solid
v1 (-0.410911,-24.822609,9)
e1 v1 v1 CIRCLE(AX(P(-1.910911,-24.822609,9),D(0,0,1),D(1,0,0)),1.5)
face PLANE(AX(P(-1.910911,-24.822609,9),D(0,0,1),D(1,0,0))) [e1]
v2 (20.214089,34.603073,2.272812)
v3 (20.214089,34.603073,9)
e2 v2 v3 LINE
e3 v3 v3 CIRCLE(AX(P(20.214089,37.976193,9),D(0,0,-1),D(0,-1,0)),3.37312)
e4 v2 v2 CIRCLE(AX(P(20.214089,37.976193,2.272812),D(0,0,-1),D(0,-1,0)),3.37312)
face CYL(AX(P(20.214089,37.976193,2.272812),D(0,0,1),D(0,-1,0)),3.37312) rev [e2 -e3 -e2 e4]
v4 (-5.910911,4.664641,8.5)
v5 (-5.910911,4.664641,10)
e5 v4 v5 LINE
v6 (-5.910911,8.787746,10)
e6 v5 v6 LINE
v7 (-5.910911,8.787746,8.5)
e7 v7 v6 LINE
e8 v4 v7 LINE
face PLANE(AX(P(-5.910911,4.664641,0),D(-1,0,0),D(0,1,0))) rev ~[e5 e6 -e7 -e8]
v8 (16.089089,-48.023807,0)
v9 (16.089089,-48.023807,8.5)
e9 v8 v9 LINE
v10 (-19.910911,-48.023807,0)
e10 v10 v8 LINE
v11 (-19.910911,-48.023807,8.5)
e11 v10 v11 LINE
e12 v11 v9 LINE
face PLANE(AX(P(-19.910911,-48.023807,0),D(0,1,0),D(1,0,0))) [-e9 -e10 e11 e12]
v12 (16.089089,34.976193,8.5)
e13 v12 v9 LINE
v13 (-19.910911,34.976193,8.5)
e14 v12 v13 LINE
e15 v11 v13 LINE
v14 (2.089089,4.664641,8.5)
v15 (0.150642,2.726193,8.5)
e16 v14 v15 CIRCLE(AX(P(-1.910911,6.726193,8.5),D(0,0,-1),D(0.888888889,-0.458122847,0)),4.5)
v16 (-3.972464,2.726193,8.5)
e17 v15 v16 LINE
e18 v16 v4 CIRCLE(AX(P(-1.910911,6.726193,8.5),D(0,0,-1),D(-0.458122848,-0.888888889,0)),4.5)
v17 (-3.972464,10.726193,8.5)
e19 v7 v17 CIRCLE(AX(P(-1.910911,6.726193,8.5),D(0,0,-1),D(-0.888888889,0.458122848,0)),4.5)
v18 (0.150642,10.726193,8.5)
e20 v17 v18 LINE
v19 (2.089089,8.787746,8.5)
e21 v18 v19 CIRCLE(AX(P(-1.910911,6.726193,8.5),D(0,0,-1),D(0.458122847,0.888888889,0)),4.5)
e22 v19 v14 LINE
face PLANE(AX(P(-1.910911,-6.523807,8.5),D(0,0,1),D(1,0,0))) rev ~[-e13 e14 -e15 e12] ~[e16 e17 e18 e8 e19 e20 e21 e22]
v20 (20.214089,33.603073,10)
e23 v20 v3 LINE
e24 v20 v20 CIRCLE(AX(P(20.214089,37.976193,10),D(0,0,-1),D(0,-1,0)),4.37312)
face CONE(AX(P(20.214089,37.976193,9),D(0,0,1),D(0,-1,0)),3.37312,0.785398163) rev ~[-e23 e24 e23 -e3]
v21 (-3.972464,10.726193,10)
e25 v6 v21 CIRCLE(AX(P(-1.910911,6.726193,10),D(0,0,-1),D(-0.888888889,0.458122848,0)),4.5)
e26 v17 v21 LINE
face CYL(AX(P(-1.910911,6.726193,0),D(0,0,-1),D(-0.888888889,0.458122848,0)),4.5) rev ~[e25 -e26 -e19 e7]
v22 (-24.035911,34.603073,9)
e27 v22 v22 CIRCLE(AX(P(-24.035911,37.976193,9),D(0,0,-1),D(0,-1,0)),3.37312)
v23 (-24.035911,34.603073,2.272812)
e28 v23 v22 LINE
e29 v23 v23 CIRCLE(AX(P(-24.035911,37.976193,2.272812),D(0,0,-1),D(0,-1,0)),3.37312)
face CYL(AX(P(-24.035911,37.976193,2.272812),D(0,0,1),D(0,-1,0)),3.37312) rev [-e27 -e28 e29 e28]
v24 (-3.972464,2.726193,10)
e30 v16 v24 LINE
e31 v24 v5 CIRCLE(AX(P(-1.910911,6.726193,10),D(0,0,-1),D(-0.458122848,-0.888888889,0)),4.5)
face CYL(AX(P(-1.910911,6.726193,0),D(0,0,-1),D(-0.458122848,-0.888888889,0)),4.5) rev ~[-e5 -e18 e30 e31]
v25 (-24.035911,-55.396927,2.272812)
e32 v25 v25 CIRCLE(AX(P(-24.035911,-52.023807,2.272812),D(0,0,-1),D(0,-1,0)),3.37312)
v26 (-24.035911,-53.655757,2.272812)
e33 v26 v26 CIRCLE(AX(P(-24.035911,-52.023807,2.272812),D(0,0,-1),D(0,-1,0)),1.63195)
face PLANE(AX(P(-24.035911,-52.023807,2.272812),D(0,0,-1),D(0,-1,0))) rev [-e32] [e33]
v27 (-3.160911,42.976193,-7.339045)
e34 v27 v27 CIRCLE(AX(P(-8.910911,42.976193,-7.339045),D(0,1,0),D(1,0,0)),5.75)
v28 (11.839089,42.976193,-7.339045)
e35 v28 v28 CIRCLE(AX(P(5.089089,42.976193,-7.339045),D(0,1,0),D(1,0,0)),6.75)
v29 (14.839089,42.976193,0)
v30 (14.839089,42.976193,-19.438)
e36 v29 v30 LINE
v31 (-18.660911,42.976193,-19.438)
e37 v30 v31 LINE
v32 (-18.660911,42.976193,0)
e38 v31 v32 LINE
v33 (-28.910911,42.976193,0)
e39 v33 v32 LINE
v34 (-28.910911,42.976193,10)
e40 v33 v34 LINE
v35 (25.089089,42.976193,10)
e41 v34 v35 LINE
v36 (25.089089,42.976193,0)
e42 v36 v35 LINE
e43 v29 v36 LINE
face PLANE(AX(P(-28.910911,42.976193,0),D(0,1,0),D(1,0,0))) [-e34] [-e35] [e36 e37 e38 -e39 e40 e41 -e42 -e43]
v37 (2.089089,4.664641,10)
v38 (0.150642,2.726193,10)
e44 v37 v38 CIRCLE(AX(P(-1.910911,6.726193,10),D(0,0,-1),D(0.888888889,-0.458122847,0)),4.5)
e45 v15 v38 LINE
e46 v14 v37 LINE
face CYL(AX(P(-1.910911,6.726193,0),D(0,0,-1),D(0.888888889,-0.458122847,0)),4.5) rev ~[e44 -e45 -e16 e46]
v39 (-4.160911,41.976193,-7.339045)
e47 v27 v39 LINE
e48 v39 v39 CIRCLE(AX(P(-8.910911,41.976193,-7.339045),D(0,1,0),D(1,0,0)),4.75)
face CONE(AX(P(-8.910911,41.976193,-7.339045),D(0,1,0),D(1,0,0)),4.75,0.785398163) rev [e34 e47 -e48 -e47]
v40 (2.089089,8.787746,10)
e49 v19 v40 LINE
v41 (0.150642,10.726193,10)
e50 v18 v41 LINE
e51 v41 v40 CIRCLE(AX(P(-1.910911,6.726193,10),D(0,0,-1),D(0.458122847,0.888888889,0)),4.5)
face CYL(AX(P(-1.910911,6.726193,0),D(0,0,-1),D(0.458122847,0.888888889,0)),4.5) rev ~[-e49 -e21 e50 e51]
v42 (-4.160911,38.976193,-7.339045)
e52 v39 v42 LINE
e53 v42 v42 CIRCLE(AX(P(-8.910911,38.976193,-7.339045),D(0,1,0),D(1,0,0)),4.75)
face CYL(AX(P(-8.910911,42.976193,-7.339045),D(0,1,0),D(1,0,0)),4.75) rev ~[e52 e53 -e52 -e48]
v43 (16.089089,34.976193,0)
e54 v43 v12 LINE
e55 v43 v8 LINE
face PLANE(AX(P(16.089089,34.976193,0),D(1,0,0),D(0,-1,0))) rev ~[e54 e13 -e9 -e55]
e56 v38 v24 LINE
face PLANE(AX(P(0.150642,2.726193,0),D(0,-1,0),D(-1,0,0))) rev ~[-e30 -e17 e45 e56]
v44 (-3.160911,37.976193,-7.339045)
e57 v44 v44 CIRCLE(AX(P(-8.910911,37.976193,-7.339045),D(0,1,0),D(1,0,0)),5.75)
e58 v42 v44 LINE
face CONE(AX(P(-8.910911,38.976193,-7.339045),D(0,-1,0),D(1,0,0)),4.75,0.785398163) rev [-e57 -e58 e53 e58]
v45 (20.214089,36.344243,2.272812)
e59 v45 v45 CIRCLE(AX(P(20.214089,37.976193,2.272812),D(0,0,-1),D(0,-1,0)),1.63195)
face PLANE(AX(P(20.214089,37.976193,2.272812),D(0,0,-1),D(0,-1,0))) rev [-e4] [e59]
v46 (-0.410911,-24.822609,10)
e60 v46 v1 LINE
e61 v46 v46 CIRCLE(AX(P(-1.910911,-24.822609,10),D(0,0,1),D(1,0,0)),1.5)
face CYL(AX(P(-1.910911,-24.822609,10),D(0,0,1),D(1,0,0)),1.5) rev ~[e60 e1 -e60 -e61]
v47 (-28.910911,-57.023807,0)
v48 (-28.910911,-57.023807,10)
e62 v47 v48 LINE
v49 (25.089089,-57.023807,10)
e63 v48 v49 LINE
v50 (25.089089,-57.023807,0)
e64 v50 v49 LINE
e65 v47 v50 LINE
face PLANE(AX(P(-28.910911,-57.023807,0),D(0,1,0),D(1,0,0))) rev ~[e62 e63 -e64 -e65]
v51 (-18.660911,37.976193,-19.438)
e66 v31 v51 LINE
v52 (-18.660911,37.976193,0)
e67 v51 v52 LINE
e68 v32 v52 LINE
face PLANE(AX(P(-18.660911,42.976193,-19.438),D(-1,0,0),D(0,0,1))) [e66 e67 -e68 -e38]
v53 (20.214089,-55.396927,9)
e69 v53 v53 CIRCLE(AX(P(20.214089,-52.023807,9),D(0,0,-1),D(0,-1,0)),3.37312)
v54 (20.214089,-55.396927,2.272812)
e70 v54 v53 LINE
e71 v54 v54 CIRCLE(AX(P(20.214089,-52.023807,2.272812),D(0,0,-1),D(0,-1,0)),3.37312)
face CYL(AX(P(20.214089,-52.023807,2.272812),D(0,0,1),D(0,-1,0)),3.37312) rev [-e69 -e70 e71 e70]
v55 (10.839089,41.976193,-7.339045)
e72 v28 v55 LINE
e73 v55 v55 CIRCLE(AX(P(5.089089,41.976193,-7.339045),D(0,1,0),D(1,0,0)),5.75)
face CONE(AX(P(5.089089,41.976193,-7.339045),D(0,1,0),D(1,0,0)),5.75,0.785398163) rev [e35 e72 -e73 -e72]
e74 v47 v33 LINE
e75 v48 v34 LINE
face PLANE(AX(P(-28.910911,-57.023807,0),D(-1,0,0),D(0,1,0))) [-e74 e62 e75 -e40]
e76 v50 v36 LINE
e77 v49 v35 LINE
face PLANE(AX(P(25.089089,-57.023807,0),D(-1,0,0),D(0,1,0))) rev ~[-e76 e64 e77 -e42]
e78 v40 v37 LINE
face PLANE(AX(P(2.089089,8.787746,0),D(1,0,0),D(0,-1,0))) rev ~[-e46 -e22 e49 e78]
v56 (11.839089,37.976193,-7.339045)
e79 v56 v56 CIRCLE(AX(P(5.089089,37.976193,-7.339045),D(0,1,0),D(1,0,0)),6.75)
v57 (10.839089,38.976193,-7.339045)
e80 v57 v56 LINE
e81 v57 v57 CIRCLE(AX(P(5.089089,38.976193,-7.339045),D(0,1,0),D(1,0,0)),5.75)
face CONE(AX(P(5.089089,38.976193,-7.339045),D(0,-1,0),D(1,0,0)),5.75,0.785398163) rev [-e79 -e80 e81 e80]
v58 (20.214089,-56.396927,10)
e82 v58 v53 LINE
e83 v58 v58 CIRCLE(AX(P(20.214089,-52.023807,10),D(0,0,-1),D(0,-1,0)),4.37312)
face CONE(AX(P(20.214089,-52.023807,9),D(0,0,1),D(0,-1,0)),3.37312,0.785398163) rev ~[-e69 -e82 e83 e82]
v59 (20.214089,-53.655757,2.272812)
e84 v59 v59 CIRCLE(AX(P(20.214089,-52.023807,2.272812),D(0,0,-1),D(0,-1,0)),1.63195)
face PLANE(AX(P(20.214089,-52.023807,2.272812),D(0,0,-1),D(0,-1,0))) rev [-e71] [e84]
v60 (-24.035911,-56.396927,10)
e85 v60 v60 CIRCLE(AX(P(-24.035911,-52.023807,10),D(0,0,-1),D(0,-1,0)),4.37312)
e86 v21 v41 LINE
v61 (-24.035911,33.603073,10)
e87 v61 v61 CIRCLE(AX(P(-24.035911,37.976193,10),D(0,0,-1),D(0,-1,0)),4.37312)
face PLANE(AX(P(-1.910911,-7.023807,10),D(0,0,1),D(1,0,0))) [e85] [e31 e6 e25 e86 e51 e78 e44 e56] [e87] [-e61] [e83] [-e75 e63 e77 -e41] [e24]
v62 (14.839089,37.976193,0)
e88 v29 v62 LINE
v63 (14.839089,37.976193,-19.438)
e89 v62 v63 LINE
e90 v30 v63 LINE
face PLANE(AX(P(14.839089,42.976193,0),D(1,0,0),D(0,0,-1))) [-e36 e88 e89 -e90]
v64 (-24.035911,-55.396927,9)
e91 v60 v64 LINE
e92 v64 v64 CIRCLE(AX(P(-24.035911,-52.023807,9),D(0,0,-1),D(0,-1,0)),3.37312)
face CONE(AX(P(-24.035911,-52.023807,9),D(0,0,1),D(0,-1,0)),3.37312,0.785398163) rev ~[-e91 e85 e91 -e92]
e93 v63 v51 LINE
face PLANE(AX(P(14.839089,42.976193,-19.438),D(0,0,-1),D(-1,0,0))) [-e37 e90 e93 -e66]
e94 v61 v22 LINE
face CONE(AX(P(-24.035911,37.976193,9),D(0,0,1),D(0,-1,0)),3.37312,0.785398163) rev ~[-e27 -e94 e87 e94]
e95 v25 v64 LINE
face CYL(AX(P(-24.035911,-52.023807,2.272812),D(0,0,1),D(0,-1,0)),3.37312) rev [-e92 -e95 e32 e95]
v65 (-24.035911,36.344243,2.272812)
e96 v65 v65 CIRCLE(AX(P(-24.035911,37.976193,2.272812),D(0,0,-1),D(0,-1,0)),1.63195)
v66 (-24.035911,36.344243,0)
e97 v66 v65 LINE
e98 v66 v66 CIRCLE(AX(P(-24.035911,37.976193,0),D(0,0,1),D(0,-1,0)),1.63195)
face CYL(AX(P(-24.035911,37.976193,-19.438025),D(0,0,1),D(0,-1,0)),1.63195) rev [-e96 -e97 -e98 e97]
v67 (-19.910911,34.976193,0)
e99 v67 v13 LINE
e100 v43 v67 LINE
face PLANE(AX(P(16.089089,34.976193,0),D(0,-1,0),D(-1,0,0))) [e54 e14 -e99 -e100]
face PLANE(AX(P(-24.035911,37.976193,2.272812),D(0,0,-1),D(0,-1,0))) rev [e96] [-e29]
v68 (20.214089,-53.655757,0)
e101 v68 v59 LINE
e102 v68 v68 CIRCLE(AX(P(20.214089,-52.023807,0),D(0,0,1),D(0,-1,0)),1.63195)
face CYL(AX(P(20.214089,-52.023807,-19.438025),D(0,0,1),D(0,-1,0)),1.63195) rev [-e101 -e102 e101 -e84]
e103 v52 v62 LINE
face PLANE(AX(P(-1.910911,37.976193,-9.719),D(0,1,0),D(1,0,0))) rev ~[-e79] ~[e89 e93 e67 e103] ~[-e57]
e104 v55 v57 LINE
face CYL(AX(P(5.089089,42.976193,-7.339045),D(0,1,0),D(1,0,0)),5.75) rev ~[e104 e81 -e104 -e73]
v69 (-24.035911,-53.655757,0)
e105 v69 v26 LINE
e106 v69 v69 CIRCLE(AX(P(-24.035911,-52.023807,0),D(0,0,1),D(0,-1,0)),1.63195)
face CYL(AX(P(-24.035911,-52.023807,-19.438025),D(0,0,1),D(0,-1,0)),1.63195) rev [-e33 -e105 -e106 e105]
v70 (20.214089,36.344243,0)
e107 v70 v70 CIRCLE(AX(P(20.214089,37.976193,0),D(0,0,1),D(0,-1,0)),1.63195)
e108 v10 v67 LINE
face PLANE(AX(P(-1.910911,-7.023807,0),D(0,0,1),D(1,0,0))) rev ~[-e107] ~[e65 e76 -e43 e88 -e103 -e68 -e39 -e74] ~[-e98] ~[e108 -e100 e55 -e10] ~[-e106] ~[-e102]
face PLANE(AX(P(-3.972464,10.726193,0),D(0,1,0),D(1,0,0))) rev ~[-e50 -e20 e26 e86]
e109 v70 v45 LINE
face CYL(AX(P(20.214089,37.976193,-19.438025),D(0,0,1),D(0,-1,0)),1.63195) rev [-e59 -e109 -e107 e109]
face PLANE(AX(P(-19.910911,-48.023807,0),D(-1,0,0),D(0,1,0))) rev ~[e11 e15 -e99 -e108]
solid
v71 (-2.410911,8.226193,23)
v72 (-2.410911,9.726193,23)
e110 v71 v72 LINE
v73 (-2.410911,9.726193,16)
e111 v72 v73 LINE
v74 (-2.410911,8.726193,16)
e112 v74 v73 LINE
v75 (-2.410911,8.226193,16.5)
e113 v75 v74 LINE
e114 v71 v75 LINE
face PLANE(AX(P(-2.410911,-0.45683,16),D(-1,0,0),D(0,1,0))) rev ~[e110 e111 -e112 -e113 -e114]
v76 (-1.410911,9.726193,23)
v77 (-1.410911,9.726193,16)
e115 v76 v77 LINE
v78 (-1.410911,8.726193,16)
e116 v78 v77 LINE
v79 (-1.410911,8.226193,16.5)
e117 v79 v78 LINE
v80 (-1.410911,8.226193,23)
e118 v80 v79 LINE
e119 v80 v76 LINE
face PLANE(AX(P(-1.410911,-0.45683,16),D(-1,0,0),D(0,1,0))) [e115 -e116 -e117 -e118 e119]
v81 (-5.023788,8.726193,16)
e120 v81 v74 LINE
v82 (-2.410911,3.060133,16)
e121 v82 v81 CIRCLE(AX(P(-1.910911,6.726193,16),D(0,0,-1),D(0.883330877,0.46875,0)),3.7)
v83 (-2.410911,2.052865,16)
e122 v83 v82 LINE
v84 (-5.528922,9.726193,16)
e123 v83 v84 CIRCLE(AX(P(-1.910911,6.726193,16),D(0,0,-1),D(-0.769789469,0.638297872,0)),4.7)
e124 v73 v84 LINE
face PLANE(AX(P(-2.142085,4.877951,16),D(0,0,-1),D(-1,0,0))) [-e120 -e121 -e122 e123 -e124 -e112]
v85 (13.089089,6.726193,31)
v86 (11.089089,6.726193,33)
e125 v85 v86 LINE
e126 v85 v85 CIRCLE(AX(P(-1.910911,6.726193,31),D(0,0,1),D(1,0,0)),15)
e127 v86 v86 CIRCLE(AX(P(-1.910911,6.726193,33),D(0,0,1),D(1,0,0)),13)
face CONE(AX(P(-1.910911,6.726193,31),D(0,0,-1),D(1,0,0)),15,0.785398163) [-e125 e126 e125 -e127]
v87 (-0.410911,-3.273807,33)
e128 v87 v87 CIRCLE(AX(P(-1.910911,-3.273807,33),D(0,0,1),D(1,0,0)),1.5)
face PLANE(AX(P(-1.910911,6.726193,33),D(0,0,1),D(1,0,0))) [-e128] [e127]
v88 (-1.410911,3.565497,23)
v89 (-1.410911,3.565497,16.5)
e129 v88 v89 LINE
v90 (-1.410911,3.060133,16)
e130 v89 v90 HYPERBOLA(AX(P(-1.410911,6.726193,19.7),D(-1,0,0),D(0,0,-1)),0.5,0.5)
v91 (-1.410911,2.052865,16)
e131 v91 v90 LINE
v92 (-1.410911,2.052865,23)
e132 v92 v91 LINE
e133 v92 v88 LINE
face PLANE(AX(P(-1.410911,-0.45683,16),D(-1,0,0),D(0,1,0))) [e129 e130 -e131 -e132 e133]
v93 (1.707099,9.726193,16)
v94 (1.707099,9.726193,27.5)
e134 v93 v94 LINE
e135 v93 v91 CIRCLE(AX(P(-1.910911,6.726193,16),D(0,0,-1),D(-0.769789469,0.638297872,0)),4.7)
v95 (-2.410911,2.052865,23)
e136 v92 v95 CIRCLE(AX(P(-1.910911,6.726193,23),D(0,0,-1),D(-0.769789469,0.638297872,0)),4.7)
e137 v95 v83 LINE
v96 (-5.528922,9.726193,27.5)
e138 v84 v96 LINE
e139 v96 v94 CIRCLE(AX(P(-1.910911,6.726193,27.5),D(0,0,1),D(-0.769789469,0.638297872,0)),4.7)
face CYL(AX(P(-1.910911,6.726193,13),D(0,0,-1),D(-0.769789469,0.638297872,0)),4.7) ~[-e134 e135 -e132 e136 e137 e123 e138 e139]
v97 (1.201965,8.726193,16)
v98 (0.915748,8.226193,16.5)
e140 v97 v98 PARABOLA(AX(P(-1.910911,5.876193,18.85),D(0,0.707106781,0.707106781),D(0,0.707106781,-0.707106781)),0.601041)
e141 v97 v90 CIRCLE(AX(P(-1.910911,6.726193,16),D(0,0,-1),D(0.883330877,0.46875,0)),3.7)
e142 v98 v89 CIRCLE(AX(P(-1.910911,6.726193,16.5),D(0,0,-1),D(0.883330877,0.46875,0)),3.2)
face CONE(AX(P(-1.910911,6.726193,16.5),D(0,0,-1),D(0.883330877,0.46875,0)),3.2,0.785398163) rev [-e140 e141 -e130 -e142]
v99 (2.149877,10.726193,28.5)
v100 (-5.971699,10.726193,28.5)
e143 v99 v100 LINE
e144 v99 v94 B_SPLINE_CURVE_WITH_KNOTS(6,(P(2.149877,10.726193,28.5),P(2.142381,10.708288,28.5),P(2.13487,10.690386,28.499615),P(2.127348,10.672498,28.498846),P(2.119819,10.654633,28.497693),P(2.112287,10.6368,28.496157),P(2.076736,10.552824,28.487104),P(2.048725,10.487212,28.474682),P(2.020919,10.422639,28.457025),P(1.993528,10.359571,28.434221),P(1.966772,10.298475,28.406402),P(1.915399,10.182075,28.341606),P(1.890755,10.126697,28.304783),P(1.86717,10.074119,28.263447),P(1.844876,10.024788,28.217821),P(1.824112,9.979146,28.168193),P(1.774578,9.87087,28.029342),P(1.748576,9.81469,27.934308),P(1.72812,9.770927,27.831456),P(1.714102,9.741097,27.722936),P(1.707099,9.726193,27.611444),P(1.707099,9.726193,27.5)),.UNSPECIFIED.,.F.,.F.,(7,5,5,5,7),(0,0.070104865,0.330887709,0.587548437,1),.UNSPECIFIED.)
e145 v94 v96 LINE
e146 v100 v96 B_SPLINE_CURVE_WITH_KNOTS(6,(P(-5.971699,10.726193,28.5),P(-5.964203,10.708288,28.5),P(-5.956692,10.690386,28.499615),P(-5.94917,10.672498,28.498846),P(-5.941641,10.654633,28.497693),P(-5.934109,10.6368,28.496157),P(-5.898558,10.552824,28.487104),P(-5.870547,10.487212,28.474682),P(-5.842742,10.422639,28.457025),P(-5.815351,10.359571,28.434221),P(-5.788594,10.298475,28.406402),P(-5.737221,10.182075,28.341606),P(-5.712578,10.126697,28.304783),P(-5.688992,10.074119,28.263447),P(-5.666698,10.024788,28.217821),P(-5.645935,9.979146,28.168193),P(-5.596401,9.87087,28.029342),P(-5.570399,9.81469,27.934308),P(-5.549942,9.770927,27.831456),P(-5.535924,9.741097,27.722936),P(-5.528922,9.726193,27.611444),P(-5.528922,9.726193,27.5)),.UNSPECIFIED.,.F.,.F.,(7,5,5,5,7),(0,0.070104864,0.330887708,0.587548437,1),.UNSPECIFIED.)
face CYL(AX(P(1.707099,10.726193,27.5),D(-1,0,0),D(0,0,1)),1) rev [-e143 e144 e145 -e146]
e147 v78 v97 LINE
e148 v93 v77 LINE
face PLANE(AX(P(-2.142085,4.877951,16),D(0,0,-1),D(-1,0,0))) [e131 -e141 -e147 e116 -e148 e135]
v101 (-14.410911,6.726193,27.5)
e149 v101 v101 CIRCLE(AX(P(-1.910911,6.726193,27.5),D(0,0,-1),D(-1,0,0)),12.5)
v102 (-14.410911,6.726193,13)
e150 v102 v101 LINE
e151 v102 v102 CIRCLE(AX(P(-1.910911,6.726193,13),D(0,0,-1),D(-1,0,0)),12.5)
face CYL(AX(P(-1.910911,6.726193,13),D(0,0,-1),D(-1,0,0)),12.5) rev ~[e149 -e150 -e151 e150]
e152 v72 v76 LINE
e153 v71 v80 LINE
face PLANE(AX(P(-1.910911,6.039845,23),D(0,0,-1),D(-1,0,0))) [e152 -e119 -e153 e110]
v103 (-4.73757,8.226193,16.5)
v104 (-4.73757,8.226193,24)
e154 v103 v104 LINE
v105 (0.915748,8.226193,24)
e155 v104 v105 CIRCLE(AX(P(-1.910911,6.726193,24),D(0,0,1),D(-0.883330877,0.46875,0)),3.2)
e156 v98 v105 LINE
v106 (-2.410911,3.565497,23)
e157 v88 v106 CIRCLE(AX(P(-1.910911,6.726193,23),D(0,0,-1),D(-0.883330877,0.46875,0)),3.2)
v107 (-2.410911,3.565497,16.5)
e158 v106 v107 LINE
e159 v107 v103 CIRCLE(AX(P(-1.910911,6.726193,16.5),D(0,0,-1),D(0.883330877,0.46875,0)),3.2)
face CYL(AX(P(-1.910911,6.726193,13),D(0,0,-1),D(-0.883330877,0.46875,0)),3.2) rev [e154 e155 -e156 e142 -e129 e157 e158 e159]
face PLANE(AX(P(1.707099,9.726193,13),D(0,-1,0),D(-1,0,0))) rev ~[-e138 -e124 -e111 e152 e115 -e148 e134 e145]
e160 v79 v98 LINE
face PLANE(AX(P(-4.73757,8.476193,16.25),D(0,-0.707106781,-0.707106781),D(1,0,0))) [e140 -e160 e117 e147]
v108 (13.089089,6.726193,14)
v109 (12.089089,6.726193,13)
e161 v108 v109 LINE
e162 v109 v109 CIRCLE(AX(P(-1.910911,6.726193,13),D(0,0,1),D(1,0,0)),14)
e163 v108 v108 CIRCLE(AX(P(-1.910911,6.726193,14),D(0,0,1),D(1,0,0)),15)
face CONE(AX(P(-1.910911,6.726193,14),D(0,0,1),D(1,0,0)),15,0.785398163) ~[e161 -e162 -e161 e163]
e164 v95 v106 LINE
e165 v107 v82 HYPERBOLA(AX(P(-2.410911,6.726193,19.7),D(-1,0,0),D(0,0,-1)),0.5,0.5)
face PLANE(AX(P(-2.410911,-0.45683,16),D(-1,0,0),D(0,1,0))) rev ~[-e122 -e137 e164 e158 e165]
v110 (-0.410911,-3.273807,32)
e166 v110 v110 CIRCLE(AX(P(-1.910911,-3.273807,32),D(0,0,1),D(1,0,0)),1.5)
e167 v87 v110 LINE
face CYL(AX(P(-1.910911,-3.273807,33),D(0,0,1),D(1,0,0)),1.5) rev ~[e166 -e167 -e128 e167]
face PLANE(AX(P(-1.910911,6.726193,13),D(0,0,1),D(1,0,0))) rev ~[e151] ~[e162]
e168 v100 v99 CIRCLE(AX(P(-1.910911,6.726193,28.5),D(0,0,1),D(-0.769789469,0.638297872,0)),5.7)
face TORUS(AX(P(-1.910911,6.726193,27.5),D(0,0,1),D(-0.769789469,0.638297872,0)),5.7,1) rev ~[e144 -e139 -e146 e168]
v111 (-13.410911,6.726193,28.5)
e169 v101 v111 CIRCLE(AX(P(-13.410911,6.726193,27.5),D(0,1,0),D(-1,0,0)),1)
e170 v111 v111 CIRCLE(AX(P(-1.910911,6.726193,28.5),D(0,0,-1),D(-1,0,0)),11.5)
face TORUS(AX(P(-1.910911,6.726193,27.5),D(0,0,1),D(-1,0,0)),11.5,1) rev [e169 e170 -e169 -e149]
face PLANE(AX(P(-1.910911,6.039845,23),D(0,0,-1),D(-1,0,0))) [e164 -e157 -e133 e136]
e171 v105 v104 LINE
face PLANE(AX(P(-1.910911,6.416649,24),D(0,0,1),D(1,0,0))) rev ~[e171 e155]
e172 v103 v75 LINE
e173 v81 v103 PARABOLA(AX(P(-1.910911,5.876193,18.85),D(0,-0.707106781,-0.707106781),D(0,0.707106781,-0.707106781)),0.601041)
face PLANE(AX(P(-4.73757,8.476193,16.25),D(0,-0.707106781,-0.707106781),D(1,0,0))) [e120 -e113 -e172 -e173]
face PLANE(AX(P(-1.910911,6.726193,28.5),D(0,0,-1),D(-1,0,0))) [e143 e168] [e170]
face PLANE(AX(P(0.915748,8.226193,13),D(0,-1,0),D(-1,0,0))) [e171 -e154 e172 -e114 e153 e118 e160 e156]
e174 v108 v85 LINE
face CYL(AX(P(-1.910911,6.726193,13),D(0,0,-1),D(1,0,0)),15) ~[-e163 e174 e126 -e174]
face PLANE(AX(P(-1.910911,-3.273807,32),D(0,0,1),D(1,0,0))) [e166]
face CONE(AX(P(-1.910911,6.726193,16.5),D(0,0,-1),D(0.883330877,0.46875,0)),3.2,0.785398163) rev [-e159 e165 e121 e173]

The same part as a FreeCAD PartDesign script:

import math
import FreeCAD as App
import Part
import Sketcher

V = App.Vector
Q = App.Units.Quantity


def edges_at(feature, points):
    """Names of the edges that pass closest to the given points."""
    edges = feature.Shape.Edges
    near = lambda p: min(range(len(edges)), key=lambda i: edges[i].distToShape(Part.Vertex(*p))[0])
    return sorted({f"Edge{near(p) + 1}" for p in points})


def add_polygon(sketch, points):
    """Adds a closed chain of lines whose ends are joined by coincident constraints."""
    first, n = sketch.GeometryCount, len(points)
    for a, b in zip(points, points[1:] + points[:1]):
        sketch.addGeometry(Part.LineSegment(App.Vector(*a, 0), App.Vector(*b, 0)), False)
    for i in range(n):
        sketch.addConstraint(Sketcher.Constraint("Coincident", first + i, 2, first + (i + 1) % n, 1))

doc = App.newDocument("Part")
params = doc.addObject("Spreadsheet::Sheet", "Params")
for row, (alias, value) in enumerate([
    ("sketch1_radius", "4.5 mm"),
    ("sketch1_width", "54 mm"),
    ("sketch1_height", "100 mm"),
    ("pad1_length", "10 mm"),
    ("sketch2_diameter", "3 mm"),
    ("pocket1_length", "1 mm"),
    ("sketch3_width", "33.5 mm"),
    ("pad2_length", "5 mm"),
    ("groove_angle", "360 deg"),
    ("linearpattern_pitch", "44.25 mm"),
    ("linearpattern2_pitch", "100.289892 mm"),
    ("linearpattern3_pitch", "90 mm"),
    ("sketch5_diameter", "11.5 mm"),
    ("sketch5_diameter2", "9.5 mm"),
    ("pocket2_length", "5 mm"),
    ("chamfer_size", "1 mm"),
    ("sketch6_width", "36 mm"),
    ("sketch6_height", "83 mm"),
    ("pocket3_length", "8.5 mm"),
    ("chamfer2_size", "1 mm"),
    ("sketch7_diameter", "30 mm"),
    ("pad3_length", "20 mm"),
    ("sketch8_radius", "3.2 mm"),
    ("pocket4_length", "11 mm"),
    ("chamfer3_size", "2 mm"),
    ("sketch9_diameter", "3 mm"),
    ("pocket5_length", "1 mm"),
    ("chamfer4_size", "1 mm"),
    ("sketch10_diameter", "25 mm"),
    ("sketch10_radius", "4.7 mm"),
    ("pocket6_length", "15.5 mm"),
    ("fillet_radius", "1 mm"),
    ("pocket7_length", "3 mm"),
    ("chamfer5_size", "0.5 mm"),
    ("sketch12_width", "1 mm"),
    ("pocket8_length", "7 mm"),
], start=1):
    params.set(f"A{row}", alias)
    params.set(f"B{row}", "=" + value)
    params.setAlias(f"B{row}", alias)

body = doc.addObject("PartDesign::Body", "Body")

# Sketch on XY plane
sketch1 = body.newObject("Sketcher::SketchObject", "Sketch")
sketch1.AttachmentSupport = (doc.getObject("XY_Plane"), [""])
sketch1.MapMode = "FlatFace"
add_polygon(sketch1, [(-28.9, 43), (-28.9, -57), (25.1, -57), (25.1, 43)])  # lines 0-3
sketch1.addGeometry(Part.ArcOfCircle(Part.Circle(V(-1.9, 6.7, 0), V(0, 0, 1), 4.5), math.radians(117), math.radians(153)), False)  # 4
sketch1.addGeometry(Part.LineSegment(V(-4, 10.7, 0), V(0.2, 10.7, 0)), False)  # 5
sketch1.addGeometry(Part.ArcOfCircle(Part.Circle(V(-1.9, 6.7, 0), V(0, 0, 1), 4.5), math.radians(27), math.radians(63)), False)  # 6
sketch1.addGeometry(Part.LineSegment(V(2.1, 8.8, 0), V(2.1, 4.7, 0)), False)  # 7
sketch1.addGeometry(Part.ArcOfCircle(Part.Circle(V(-1.9, 6.7, 0), V(0, 0, 1), 4.5), math.radians(-63), math.radians(-27)), False)  # 8
sketch1.addGeometry(Part.LineSegment(V(0.2, 2.7, 0), V(-4, 2.7, 0)), False)  # 9
sketch1.addGeometry(Part.ArcOfCircle(Part.Circle(V(-1.9, 6.7, 0), V(0, 0, 1), 4.5), math.radians(-153), math.radians(-117)), False)  # 10
sketch1.addGeometry(Part.LineSegment(V(-5.9, 4.7, 0), V(-5.9, 8.8, 0)), False)  # 11
sketch1.addConstraint(Sketcher.Constraint("Coincident", 4, 1, 5, 1))
sketch1.addConstraint(Sketcher.Constraint("Coincident", 5, 2, 6, 2))
sketch1.addConstraint(Sketcher.Constraint("Coincident", 6, 1, 7, 1))
sketch1.addConstraint(Sketcher.Constraint("Coincident", 7, 2, 8, 2))
sketch1.addConstraint(Sketcher.Constraint("Coincident", 8, 1, 9, 1))
sketch1.addConstraint(Sketcher.Constraint("Coincident", 9, 2, 10, 2))
sketch1.addConstraint(Sketcher.Constraint("Coincident", 10, 1, 11, 1))
sketch1.addConstraint(Sketcher.Constraint("Coincident", 11, 2, 4, 2))
sketch1.addConstraint(Sketcher.Constraint("Vertical", 0))
sketch1.addConstraint(Sketcher.Constraint("Horizontal", 1))
sketch1.addConstraint(Sketcher.Constraint("Vertical", 2))
sketch1.addConstraint(Sketcher.Constraint("Horizontal", 3))
sketch1.addConstraint(Sketcher.Constraint("Horizontal", 5))
sketch1.addConstraint(Sketcher.Constraint("Vertical", 7))
sketch1.addConstraint(Sketcher.Constraint("Horizontal", 9))
sketch1.addConstraint(Sketcher.Constraint("Vertical", 11))
sketch1.addConstraint(Sketcher.Constraint("Coincident", 6, 3, 4, 3))
sketch1.addConstraint(Sketcher.Constraint("Coincident", 8, 3, 4, 3))
sketch1.addConstraint(Sketcher.Constraint("Coincident", 10, 3, 4, 3))
sketch1.addConstraint(Sketcher.Constraint("Equal", 4, 6))
sketch1.addConstraint(Sketcher.Constraint("Equal", 6, 8))
sketch1.addConstraint(Sketcher.Constraint("Equal", 8, 10))
sketch1.addConstraint(Sketcher.Constraint("Horizontal", 7, 2, 10, 1))
sketch1.addConstraint(Sketcher.Constraint("Vertical", 5, 2, 8, 1))
sketch1.addConstraint(Sketcher.Constraint("Equal", 9, 7))
sketch1.addConstraint(Sketcher.Constraint("Radius", 4, Q("4.5 mm")))
sketch1.addConstraint(Sketcher.Constraint("DistanceX", 1, 1, 1, 2, Q("54 mm")))
sketch1.addConstraint(Sketcher.Constraint("DistanceY", 0, 2, 0, 1, Q("100 mm")))
sketch1.addConstraint(Sketcher.Constraint("DistanceX", 0, 2, 4, 3, Q("27 mm")))
sketch1.addConstraint(Sketcher.Constraint("DistanceY", 10, 3, 4, 1, Q("4 mm")))
sketch1.addConstraint(Sketcher.Constraint("DistanceY", 0, 2, 4, 3, Q("63.75 mm")))
sketch1.addConstraint(Sketcher.Constraint("DistanceX", 4, 3, -1, 1, Q("1.910911 mm")))
sketch1.addConstraint(Sketcher.Constraint("DistanceY", -1, 1, 7, 2, Q("4.664641 mm")))
sketch1.setExpression("Constraints[29]", "Params.sketch1_radius")
sketch1.setExpression("Constraints[30]", "Params.sketch1_width")
sketch1.setExpression("Constraints[31]", "Params.sketch1_height")
pad1 = body.newObject("PartDesign::Pad", "Pad")
pad1.Profile = sketch1
pad1.setExpression("Length", "Params.pad1_length")

# Sketch on XY plane
sketch2 = body.newObject("Sketcher::SketchObject", "Sketch001")
sketch2.AttachmentSupport = (doc.getObject("XY_Plane"), [""])
sketch2.MapMode = "FlatFace"
sketch2.AttachmentOffset = App.Placement(V(0, 0, 10), App.Rotation())
sketch2.addGeometry(Part.Circle(V(-1.9, -24.8, 0), V(0, 0, 1), 1.5), False)
sketch2.addConstraint(Sketcher.Constraint("Diameter", 0, Q("3 mm")))
sketch2.addConstraint(Sketcher.Constraint("DistanceX", 0, 3, -1, 1, Q("1.910911 mm")))
sketch2.addConstraint(Sketcher.Constraint("DistanceY", 0, 3, -1, 1, Q("24.822609 mm")))
sketch2.setExpression("Constraints[0]", "Params.sketch2_diameter")
pocket1 = body.newObject("PartDesign::Pocket", "Pocket")
pocket1.Profile = sketch2
pocket1.setExpression("Length", "Params.pocket1_length")

# Sketch on XZ plane
sketch3 = body.newObject("Sketcher::SketchObject", "Sketch002")
sketch3.AttachmentSupport = (doc.getObject("XZ_Plane"), [""])
sketch3.MapMode = "FlatFace"
sketch3.AttachmentOffset = App.Placement(V(0, 0, -42.976193), App.Rotation())
add_polygon(sketch3, [(-19, 0), (15, 0), (15, -19), (-19, -19)])  # lines 0-3
sketch3.addConstraint(Sketcher.Constraint("Horizontal", 0))
sketch3.addConstraint(Sketcher.Constraint("Vertical", 1))
sketch3.addConstraint(Sketcher.Constraint("Horizontal", 2))
sketch3.addConstraint(Sketcher.Constraint("Vertical", 3))
sketch3.addConstraint(Sketcher.Constraint("PointOnObject", 0, 2, -1))
sketch3.addConstraint(Sketcher.Constraint("DistanceX", 0, 1, 0, 2, Q("33.5 mm")))
sketch3.addConstraint(Sketcher.Constraint("DistanceY", 1, 2, 1, 1, Q("19.438 mm")))
sketch3.addConstraint(Sketcher.Constraint("DistanceX", -1, 1, 0, 2, Q("14.839089 mm")))
sketch3.setExpression("Constraints[9]", "Params.sketch3_width")
pad2 = body.newObject("PartDesign::Pad", "Pad001")
pad2.Profile = sketch3
pad2.setExpression("Length", "Params.pad2_length")

# Sketch on YZ plane
sketch4 = body.newObject("Sketcher::SketchObject", "Sketch003")
sketch4.AttachmentSupport = (doc.getObject("YZ_Plane"), [""])
sketch4.MapMode = "FlatFace"
sketch4.AttachmentOffset = App.Placement(V(0, 0, 20.214089), App.Rotation())
add_polygon(sketch4, [(-52, -19.4), (-52, 10), (-55.4, 10), (-55.4, 2.3), (-53.7, 2.3), (-53.7, -19.4)])  # lines 0-5
sketch4.addGeometry(Part.LineSegment(V(-52, 10, 0), V(-52, -19.4, 0)), True)  # axis
sketch4.addConstraint(Sketcher.Constraint("Vertical", 0))
sketch4.addConstraint(Sketcher.Constraint("Horizontal", 1))
sketch4.addConstraint(Sketcher.Constraint("Vertical", 2))
sketch4.addConstraint(Sketcher.Constraint("Horizontal", 3))
sketch4.addConstraint(Sketcher.Constraint("Vertical", 4))
sketch4.addConstraint(Sketcher.Constraint("Horizontal", 5))
sketch4.addConstraint(Sketcher.Constraint("Vertical", 6))
sketch4.addConstraint(Sketcher.Constraint("Coincident", 6, 1, 0, 2))
sketch4.addConstraint(Sketcher.Constraint("Horizontal", 4, 2, 6, 2))
sketch4.addConstraint(Sketcher.Constraint("DistanceY", -1, 1, 0, 2, Q("10 mm")))
sketch4.addConstraint(Sketcher.Constraint("DistanceX", 1, 2, 1, 1, Q("3.37312 mm")))
sketch4.addConstraint(Sketcher.Constraint("DistanceX", 3, 1, 3, 2, Q("1.74117 mm")))
sketch4.addConstraint(Sketcher.Constraint("DistanceY", 0, 1, 0, 2, Q("29.438025 mm")))
sketch4.addConstraint(Sketcher.Constraint("DistanceY", 2, 2, 2, 1, Q("7.727188 mm")))
sketch4.addConstraint(Sketcher.Constraint("DistanceX", 0, 2, -1, 1, Q("52.023807 mm")))
groove = body.newObject("PartDesign::Groove", "Groove")
groove.Profile = sketch4
groove.ReferenceAxis = (sketch4, ["Axis0"])
groove.setExpression("Angle", "Params.groove_angle")
doc.recompute()

linearpattern = body.newObject("PartDesign::LinearPattern", "LinearPattern")
linearpattern.Originals = [groove]
linearpattern.Direction = (doc.getObject("X_Axis"), [""])
linearpattern.Mode = "offset"
linearpattern.setExpression("Offset", "Params.linearpattern_pitch")
linearpattern.Occurrences = 2
linearpattern.Reversed = True
body.Tip = linearpattern
doc.recompute()

datumline = body.newObject("PartDesign::Line", "DatumLine")
datumline.Placement = App.Placement(V(0, 0, 0), App.Rotation(V(0, 0, 1), V(-0.441220934, 0.897398511, 0)))
linearpattern2 = body.newObject("PartDesign::LinearPattern", "LinearPattern001")
linearpattern2.Originals = [groove]
linearpattern2.Direction = (datumline, [""])
linearpattern2.Mode = "offset"
linearpattern2.setExpression("Offset", "Params.linearpattern2_pitch")
linearpattern2.Occurrences = 2
body.Tip = linearpattern2
doc.recompute()

linearpattern3 = body.newObject("PartDesign::LinearPattern", "LinearPattern002")
linearpattern3.Originals = [groove]
linearpattern3.Direction = (doc.getObject("Y_Axis"), [""])
linearpattern3.Mode = "offset"
linearpattern3.setExpression("Offset", "Params.linearpattern3_pitch")
linearpattern3.Occurrences = 2
body.Tip = linearpattern3

# Sketch on XZ plane
sketch5 = body.newObject("Sketcher::SketchObject", "Sketch004")
sketch5.AttachmentSupport = (doc.getObject("XZ_Plane"), [""])
sketch5.MapMode = "FlatFace"
sketch5.AttachmentOffset = App.Placement(V(0, 0, -42.976193), App.Rotation())
sketch5.addGeometry(Part.Circle(V(5.1, -7.3, 0), V(0, 0, 1), 5.8), False)
sketch5.addGeometry(Part.Circle(V(-8.9, -7.3, 0), V(0, 0, 1), 4.8), False)
sketch5.addConstraint(Sketcher.Constraint("Horizontal", 0, 3, 1, 3))
sketch5.addConstraint(Sketcher.Constraint("Diameter", 0, Q("11.5 mm")))
sketch5.addConstraint(Sketcher.Constraint("Diameter", 1, Q("9.5 mm")))
sketch5.addConstraint(Sketcher.Constraint("DistanceX", 1, 3, 0, 3, Q("14 mm")))
sketch5.addConstraint(Sketcher.Constraint("DistanceX", -1, 1, 0, 3, Q("5.089089 mm")))
sketch5.addConstraint(Sketcher.Constraint("DistanceY", 0, 3, -1, 1, Q("7.339045 mm")))
sketch5.setExpression("Constraints[1]", "Params.sketch5_diameter")
sketch5.setExpression("Constraints[2]", "Params.sketch5_diameter2")
pocket2 = body.newObject("PartDesign::Pocket", "Pocket001")
pocket2.Profile = sketch5
pocket2.setExpression("Length", "Params.pocket2_length")
pocket2.Reversed = True
doc.recompute()

chamfer = body.newObject("PartDesign::Chamfer", "Chamfer")
chamfer.Base = (pocket2, edges_at(pocket2, [
    (-13.661, 42.976, -7.339),
    (-13.661, 37.976, -7.339),
    (-0.661, 42.976, -7.339),
    (-0.661, 37.976, -7.339),
]))
chamfer.setExpression("Size", "Params.chamfer_size")

# Sketch on XY plane
sketch6 = body.newObject("Sketcher::SketchObject", "Sketch005")
sketch6.AttachmentSupport = (doc.getObject("XY_Plane"), [""])
sketch6.MapMode = "FlatFace"
add_polygon(sketch6, [(16, 35), (16, -48), (-20, -48), (-20, 35)])  # lines 0-3
sketch6.addConstraint(Sketcher.Constraint("Vertical", 0))
sketch6.addConstraint(Sketcher.Constraint("Horizontal", 1))
sketch6.addConstraint(Sketcher.Constraint("Vertical", 2))
sketch6.addConstraint(Sketcher.Constraint("Horizontal", 3))
sketch6.addConstraint(Sketcher.Constraint("DistanceX", 1, 2, 1, 1, Q("36 mm")))
sketch6.addConstraint(Sketcher.Constraint("DistanceY", 0, 2, 0, 1, Q("83 mm")))
sketch6.addConstraint(Sketcher.Constraint("DistanceX", -1, 1, 0, 2, Q("16.089089 mm")))
sketch6.addConstraint(Sketcher.Constraint("DistanceY", 0, 2, -1, 1, Q("48.023807 mm")))
sketch6.setExpression("Constraints[8]", "Params.sketch6_width")
sketch6.setExpression("Constraints[9]", "Params.sketch6_height")
pocket3 = body.newObject("PartDesign::Pocket", "Pocket002")
pocket3.Profile = sketch6
pocket3.setExpression("Length", "Params.pocket3_length")
pocket3.Reversed = True
doc.recompute()

chamfer2 = body.newObject("PartDesign::Chamfer", "Chamfer001")
chamfer2.Base = (pocket3, edges_at(pocket3, [
    (20.214, 41.349, 10),
    (-24.036, 41.349, 10),
    (-24.036, -48.651, 10),
    (20.214, -48.651, 10),
]))
chamfer2.setExpression("Size", "Params.chamfer2_size")
body2 = doc.addObject("PartDesign::Body", "Body001")

# Sketch on XY plane
sketch7 = body2.newObject("Sketcher::SketchObject", "Sketch006")
sketch7.AttachmentSupport = (doc.getObject("XY_Plane001"), [""])
sketch7.MapMode = "FlatFace"
sketch7.AttachmentOffset = App.Placement(V(0, 0, 13), App.Rotation())
sketch7.addGeometry(Part.Circle(V(-2, 7, 0), V(0, 0, 1), 15), False)
sketch7.addConstraint(Sketcher.Constraint("Diameter", 0, Q("30 mm")))
sketch7.addConstraint(Sketcher.Constraint("DistanceX", 0, 3, -1, 1, Q("1.910911 mm")))
sketch7.addConstraint(Sketcher.Constraint("DistanceY", -1, 1, 0, 3, Q("6.726193 mm")))
sketch7.setExpression("Constraints[0]", "Params.sketch7_diameter")
pad3 = body2.newObject("PartDesign::Pad", "Pad002")
pad3.Profile = sketch7
pad3.setExpression("Length", "Params.pad3_length")

# Sketch on XY plane
sketch8 = body2.newObject("Sketcher::SketchObject", "Sketch007")
sketch8.AttachmentSupport = (doc.getObject("XY_Plane001"), [""])
sketch8.MapMode = "FlatFace"
sketch8.AttachmentOffset = App.Placement(V(0, 0, 13), App.Rotation())
sketch8.addGeometry(Part.LineSegment(V(0.9, 8.2, 0), V(-4.7, 8.2, 0)), False)
sketch8.addGeometry(Part.ArcOfCircle(Part.Circle(V(-1.9, 6.7, 0), V(0, 0, 1), 3.2), math.radians(152), math.radians(388)), False)
sketch8.addConstraint(Sketcher.Constraint("Coincident", 0, 1, 1, 2))
sketch8.addConstraint(Sketcher.Constraint("Coincident", 1, 1, 0, 2))
sketch8.addConstraint(Sketcher.Constraint("Horizontal", 0))
sketch8.addConstraint(Sketcher.Constraint("Radius", 1, Q("3.2 mm")))
sketch8.addConstraint(Sketcher.Constraint("DistanceY", 1, 3, 0, 1, Q("1.5 mm")))
sketch8.addConstraint(Sketcher.Constraint("DistanceX", 1, 3, -1, 1, Q("1.910911 mm")))
sketch8.addConstraint(Sketcher.Constraint("DistanceY", -1, 1, 1, 3, Q("6.726193 mm")))
sketch8.setExpression("Constraints[3]", "Params.sketch8_radius")
pocket4 = body2.newObject("PartDesign::Pocket", "Pocket003")
pocket4.Profile = sketch8
pocket4.setExpression("Length", "Params.pocket4_length")
pocket4.Reversed = True
doc.recompute()

chamfer3 = body2.newObject("PartDesign::Chamfer", "Chamfer002")
chamfer3.Base = (pocket4, edges_at(pocket4, [(-16.911, 6.726, 33)]))
chamfer3.setExpression("Size", "Params.chamfer3_size")

# Sketch on XY plane
sketch9 = body2.newObject("Sketcher::SketchObject", "Sketch008")
sketch9.AttachmentSupport = (doc.getObject("XY_Plane001"), [""])
sketch9.MapMode = "FlatFace"
sketch9.AttachmentOffset = App.Placement(V(0, 0, 33), App.Rotation())
sketch9.addGeometry(Part.Circle(V(-1.9, -3.3, 0), V(0, 0, 1), 1.5), False)
sketch9.addConstraint(Sketcher.Constraint("Diameter", 0, Q("3 mm")))
sketch9.addConstraint(Sketcher.Constraint("DistanceX", 0, 3, -1, 1, Q("1.910911 mm")))
sketch9.addConstraint(Sketcher.Constraint("DistanceY", 0, 3, -1, 1, Q("3.273807 mm")))
sketch9.setExpression("Constraints[0]", "Params.sketch9_diameter")
pocket5 = body2.newObject("PartDesign::Pocket", "Pocket004")
pocket5.Profile = sketch9
pocket5.setExpression("Length", "Params.pocket5_length")
doc.recompute()

chamfer4 = body2.newObject("PartDesign::Chamfer", "Chamfer003")
chamfer4.Base = (pocket5, edges_at(pocket5, [(-16.911, 6.726, 13), (-1.911, 8.226, 13), (-1.911, 3.526, 13)]))
chamfer4.setExpression("Size", "Params.chamfer4_size")

# Sketch on XY plane
sketch10 = body2.newObject("Sketcher::SketchObject", "Sketch009")
sketch10.AttachmentSupport = (doc.getObject("XY_Plane001"), [""])
sketch10.MapMode = "FlatFace"
sketch10.AttachmentOffset = App.Placement(V(0, 0, 13), App.Rotation())
sketch10.addGeometry(Part.Circle(V(-1.9, 6.7, 0), V(0, 0, 1), 12.5), False)
sketch10.addGeometry(Part.ArcOfCircle(Part.Circle(V(-1.9, 6.7, 0), V(0, 0, 1), 4.7), math.radians(140), math.radians(400)), False)
sketch10.addGeometry(Part.LineSegment(V(1.7, 9.7, 0), V(-5.5, 9.7, 0)), False)
sketch10.addConstraint(Sketcher.Constraint("Coincident", 1, 1, 2, 2))
sketch10.addConstraint(Sketcher.Constraint("Coincident", 2, 1, 1, 2))
sketch10.addConstraint(Sketcher.Constraint("Horizontal", 2))
sketch10.addConstraint(Sketcher.Constraint("Coincident", 1, 3, 0, 3))
sketch10.addConstraint(Sketcher.Constraint("Diameter", 0, Q("25 mm")))
sketch10.addConstraint(Sketcher.Constraint("Radius", 1, Q("4.7 mm")))
sketch10.addConstraint(Sketcher.Constraint("DistanceY", 0, 3, 1, 1, Q("3 mm")))
sketch10.addConstraint(Sketcher.Constraint("DistanceX", -1, 1, 2, 1, Q("1.707099 mm")))
sketch10.addConstraint(Sketcher.Constraint("DistanceY", -1, 1, 0, 3, Q("6.726193 mm")))
sketch10.setExpression("Constraints[4]", "Params.sketch10_diameter")
sketch10.setExpression("Constraints[5]", "Params.sketch10_radius")
pocket6 = body2.newObject("PartDesign::Pocket", "Pocket005")
pocket6.Profile = sketch10
pocket6.setExpression("Length", "Params.pocket6_length")
pocket6.Reversed = True
doc.recompute()

fillet = body2.newObject("PartDesign::Fillet", "Fillet")
fillet.Base = (pocket6, edges_at(pocket6, [(10.589, 6.726, 28.5), (-1.911, 9.726, 28.5), (-1.911, 2.026, 28.5)]))
fillet.setExpression("Radius", "Params.fillet_radius")

# Sketch on XY plane
sketch11 = body2.newObject("Sketcher::SketchObject", "Sketch010")
sketch11.AttachmentSupport = (doc.getObject("XY_Plane001"), [""])
sketch11.MapMode = "FlatFace"
sketch11.AttachmentOffset = App.Placement(V(0, 0, 13), App.Rotation())
add_polygon(sketch11, [(4, 10), (4, 0), (-8, 0), (-8, 10)])  # lines 0-3
sketch11.addConstraint(Sketcher.Constraint("Vertical", 0))
sketch11.addConstraint(Sketcher.Constraint("Horizontal", 1))
sketch11.addConstraint(Sketcher.Constraint("Vertical", 2))
sketch11.addConstraint(Sketcher.Constraint("Horizontal", 3))
sketch11.addConstraint(Sketcher.Constraint("DistanceX", 1, 2, 1, 1, Q("11.794346 mm")))
sketch11.addConstraint(Sketcher.Constraint("DistanceY", 0, 2, 0, 1, Q("9.696484 mm")))
sketch11.addConstraint(Sketcher.Constraint("DistanceX", -1, 1, 0, 2, Q("3.755088 mm")))
sketch11.addConstraint(Sketcher.Constraint("DistanceY", -1, 1, 0, 2, Q("0.029709 mm")))
pocket7 = body2.newObject("PartDesign::Pocket", "Pocket006")
pocket7.Profile = sketch11
pocket7.setExpression("Length", "Params.pocket7_length")
pocket7.Reversed = True
doc.recompute()

chamfer5 = body2.newObject("PartDesign::Chamfer", "Chamfer004")
chamfer5.Base = (pocket7, edges_at(pocket7, [(-1.911, 8.226, 16), (-1.911, 3.526, 16)]))
chamfer5.setExpression("Size", "Params.chamfer5_size")

# Sketch on XY plane
sketch12 = body2.newObject("Sketcher::SketchObject", "Sketch011")
sketch12.AttachmentSupport = (doc.getObject("XY_Plane001"), [""])
sketch12.MapMode = "FlatFace"
sketch12.AttachmentOffset = App.Placement(V(0, 0, 16), App.Rotation())
add_polygon(sketch12, [(-1.4, 12.5), (-1.4, -0.5), (-2.4, -0.5), (-2.4, 12.5)])  # lines 0-3
sketch12.addConstraint(Sketcher.Constraint("Vertical", 0))
sketch12.addConstraint(Sketcher.Constraint("Horizontal", 1))
sketch12.addConstraint(Sketcher.Constraint("Vertical", 2))
sketch12.addConstraint(Sketcher.Constraint("Horizontal", 3))
sketch12.addConstraint(Sketcher.Constraint("DistanceX", 1, 2, 1, 1, Q("1 mm")))
sketch12.addConstraint(Sketcher.Constraint("DistanceY", 0, 2, 0, 1, Q("12.99335 mm")))
sketch12.addConstraint(Sketcher.Constraint("DistanceX", 0, 2, -1, 1, Q("1.410911 mm")))
sketch12.addConstraint(Sketcher.Constraint("DistanceY", 0, 2, -1, 1, Q("0.45683 mm")))
sketch12.setExpression("Constraints[8]", "Params.sketch12_width")
pocket8 = body2.newObject("PartDesign::Pocket", "Pocket007")
pocket8.Profile = sketch12
pocket8.setExpression("Length", "Params.pocket8_length")
pocket8.Reversed = True

doc.recompute()
